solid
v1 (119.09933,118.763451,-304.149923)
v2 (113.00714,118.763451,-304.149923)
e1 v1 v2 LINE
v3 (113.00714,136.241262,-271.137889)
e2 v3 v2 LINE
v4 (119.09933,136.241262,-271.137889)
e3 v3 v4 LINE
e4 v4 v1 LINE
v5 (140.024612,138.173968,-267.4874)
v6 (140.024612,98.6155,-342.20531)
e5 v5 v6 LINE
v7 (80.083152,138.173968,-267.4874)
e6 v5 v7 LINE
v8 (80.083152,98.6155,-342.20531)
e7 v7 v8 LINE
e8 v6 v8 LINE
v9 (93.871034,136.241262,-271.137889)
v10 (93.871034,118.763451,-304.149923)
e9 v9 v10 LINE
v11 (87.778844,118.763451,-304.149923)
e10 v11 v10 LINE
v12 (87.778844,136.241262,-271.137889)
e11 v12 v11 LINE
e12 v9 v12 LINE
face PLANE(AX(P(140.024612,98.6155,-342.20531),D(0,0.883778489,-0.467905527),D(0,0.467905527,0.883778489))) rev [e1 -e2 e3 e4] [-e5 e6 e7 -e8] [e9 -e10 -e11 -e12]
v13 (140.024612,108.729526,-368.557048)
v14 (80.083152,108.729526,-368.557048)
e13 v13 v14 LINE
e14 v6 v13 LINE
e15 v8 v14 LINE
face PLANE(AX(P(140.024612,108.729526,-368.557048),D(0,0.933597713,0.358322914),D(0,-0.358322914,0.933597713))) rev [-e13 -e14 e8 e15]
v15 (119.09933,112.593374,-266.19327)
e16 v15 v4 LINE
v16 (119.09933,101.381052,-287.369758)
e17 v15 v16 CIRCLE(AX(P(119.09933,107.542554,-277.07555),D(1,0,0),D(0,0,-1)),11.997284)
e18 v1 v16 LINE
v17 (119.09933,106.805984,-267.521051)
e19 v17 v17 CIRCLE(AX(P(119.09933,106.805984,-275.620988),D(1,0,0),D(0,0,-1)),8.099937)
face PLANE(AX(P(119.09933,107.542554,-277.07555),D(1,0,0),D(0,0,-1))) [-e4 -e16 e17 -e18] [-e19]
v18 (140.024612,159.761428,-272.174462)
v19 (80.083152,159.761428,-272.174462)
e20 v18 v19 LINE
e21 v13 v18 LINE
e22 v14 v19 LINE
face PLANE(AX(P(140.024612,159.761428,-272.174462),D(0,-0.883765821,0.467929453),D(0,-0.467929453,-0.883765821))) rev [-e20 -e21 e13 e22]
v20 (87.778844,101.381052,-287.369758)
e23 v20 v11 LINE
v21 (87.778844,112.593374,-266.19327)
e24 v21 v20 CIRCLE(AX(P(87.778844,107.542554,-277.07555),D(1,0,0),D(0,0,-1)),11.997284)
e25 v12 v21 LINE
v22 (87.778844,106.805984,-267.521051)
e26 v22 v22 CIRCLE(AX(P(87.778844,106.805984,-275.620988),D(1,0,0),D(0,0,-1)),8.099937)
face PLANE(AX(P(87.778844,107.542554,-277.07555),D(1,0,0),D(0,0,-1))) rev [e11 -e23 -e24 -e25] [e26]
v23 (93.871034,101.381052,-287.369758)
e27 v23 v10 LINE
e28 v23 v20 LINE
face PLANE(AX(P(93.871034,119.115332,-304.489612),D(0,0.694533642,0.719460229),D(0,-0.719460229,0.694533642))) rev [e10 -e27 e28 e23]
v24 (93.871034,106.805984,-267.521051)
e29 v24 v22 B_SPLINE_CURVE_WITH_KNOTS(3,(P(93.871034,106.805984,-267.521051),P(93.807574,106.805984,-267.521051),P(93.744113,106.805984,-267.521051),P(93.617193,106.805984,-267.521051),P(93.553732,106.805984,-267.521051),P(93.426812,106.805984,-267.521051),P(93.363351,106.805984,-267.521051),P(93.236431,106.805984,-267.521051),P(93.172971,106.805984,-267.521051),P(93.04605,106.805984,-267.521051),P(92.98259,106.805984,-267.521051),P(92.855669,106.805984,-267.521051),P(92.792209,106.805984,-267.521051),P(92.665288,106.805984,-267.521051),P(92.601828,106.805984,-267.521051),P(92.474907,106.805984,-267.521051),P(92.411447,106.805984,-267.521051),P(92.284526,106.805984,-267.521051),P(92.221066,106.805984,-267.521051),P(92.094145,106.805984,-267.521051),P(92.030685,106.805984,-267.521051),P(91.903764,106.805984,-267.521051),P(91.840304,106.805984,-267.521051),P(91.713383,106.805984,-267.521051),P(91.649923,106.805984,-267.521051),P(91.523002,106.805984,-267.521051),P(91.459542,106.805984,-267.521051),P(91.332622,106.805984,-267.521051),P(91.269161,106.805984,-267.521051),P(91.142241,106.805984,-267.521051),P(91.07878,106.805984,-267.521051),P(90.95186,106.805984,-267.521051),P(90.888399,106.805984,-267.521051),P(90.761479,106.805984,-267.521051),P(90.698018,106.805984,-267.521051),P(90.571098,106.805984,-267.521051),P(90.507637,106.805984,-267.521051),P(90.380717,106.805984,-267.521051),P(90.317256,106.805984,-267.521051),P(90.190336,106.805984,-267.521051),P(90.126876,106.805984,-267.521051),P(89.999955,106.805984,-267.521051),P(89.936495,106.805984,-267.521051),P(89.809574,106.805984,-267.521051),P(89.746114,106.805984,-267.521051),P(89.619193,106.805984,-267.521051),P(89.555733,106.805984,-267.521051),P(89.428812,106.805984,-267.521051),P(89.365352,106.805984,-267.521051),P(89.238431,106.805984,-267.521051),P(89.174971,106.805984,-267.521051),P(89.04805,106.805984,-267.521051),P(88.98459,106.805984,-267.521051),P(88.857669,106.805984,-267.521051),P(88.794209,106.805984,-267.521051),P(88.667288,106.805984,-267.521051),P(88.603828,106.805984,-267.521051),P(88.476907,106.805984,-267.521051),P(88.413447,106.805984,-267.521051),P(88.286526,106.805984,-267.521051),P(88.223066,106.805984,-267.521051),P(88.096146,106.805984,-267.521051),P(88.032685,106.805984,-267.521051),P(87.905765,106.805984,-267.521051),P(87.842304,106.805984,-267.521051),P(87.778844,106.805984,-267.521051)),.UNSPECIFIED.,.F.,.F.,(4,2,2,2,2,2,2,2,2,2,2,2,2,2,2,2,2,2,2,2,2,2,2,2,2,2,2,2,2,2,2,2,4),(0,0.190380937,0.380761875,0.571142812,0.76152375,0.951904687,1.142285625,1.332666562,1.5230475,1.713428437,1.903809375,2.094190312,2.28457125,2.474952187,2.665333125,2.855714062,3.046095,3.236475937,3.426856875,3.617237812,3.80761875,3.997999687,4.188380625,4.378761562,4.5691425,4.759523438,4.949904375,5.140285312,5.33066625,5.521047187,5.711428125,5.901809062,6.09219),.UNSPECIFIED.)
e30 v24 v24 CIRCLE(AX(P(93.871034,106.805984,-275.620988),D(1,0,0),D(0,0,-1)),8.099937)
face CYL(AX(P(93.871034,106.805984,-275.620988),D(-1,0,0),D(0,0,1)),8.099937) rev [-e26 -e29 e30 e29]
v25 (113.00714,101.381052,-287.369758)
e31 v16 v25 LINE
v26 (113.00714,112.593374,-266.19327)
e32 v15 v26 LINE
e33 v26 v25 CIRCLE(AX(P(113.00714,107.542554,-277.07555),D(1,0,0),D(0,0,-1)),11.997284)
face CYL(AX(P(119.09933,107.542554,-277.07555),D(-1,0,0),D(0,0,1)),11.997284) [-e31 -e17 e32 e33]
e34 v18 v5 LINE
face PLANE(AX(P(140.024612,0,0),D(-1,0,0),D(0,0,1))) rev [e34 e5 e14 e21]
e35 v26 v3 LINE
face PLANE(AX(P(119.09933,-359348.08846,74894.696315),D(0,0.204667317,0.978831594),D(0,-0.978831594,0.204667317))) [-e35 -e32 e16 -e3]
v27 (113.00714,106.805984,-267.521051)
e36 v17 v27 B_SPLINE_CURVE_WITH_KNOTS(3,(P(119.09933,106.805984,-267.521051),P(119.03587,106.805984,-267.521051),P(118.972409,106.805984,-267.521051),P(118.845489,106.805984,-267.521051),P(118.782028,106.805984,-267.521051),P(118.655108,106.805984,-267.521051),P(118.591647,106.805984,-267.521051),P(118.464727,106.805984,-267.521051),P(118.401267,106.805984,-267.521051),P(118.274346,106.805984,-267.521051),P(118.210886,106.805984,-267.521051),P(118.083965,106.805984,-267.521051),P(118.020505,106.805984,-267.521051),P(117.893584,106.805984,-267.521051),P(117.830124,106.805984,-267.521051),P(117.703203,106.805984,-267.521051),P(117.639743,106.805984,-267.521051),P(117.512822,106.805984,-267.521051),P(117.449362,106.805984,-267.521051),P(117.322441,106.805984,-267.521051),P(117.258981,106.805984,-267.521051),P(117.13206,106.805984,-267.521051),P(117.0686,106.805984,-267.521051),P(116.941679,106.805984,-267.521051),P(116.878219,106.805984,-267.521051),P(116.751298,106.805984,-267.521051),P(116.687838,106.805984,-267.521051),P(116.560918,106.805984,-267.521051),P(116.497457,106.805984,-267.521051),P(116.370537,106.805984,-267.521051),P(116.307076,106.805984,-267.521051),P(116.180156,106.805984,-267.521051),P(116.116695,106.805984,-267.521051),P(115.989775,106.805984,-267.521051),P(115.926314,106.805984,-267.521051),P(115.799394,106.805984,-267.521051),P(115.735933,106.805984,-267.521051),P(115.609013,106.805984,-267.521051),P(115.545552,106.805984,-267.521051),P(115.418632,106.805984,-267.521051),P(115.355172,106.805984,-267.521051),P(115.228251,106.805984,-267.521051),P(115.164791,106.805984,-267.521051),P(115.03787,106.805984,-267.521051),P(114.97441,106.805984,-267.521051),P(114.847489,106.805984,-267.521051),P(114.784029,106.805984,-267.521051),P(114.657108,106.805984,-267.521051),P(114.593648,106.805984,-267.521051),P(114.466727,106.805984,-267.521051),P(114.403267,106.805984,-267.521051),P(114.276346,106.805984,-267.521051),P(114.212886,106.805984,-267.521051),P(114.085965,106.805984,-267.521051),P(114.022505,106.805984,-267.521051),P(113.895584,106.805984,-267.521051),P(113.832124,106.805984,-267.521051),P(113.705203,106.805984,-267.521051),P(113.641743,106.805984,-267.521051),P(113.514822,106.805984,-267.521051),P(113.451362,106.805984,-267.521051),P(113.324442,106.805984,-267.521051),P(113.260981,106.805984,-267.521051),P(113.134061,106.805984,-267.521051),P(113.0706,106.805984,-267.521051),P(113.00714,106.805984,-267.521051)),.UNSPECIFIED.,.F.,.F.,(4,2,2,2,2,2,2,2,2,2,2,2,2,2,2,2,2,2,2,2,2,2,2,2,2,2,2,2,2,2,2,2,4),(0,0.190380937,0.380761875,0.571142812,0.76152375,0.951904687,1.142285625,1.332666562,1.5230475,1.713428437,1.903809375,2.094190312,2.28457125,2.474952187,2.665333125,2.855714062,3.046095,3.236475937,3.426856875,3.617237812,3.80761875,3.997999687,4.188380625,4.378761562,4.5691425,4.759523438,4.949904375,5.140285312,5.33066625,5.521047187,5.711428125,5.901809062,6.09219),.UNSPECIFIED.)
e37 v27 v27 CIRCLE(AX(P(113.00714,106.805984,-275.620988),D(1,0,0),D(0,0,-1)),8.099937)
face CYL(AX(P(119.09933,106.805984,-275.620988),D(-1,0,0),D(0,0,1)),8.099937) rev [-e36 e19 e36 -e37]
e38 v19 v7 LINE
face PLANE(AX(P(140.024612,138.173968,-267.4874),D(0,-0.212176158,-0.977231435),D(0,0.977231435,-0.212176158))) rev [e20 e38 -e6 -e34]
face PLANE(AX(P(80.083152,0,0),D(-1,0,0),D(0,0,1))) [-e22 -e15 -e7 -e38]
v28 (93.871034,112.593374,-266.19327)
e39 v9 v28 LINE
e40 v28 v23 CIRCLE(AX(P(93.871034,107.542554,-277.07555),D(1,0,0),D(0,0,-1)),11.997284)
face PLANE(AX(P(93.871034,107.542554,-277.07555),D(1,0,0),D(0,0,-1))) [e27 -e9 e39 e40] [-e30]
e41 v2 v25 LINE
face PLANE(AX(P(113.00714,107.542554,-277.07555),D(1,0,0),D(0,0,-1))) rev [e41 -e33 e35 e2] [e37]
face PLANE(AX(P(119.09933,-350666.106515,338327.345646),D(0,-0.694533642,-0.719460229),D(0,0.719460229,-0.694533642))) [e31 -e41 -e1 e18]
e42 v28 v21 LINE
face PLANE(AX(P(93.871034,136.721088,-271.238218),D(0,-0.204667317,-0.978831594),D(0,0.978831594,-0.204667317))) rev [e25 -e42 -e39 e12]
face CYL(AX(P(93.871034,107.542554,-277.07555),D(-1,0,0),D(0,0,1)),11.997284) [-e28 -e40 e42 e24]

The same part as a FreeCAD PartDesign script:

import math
import FreeCAD as App
import Part
import Sketcher
from FreeCAD import Vector


def add_polygon(sketch, points):
    """Adds a closed chain of lines whose ends are joined by coincident constraints."""
    first, n = sketch.GeometryCount, len(points)
    for a, b in zip(points, points[1:] + points[:1]):
        sketch.addGeometry(Part.LineSegment(App.Vector(*a, 0), App.Vector(*b, 0)), False)
    for i in range(n):
        sketch.addConstraint(Sketcher.Constraint("Coincident", first + i, 2, first + (i + 1) % n, 1))

doc = App.newDocument("Part")
body = doc.addObject("PartDesign::Body", "Body")

# Sketch on YZ plane
sketch1 = body.newObject("Sketcher::SketchObject", "Sketch")
sketch1.AttachmentSupport = (doc.getObject("YZ_Plane"), [""])
sketch1.MapMode = "FlatFace"
sketch1.AttachmentOffset = App.Placement(Vector(0, 0, 80.083152), App.Rotation())
add_polygon(sketch1, [(160, -272), (138, -267), (99, -342), (109, -369)])  # lines 0-3
sketch1.addConstraint([
    Sketcher.Constraint("DistanceY", 0, 2, -1, 1, 267.4874),
    Sketcher.Constraint("DistanceX", -1, 1, 1, 2, 98.6155),
    Sketcher.Constraint("DistanceX", 2, 2, 3, 2, 51.031902),
    Sketcher.Constraint("Distance", 2, 28.22601),
    Sketcher.Constraint("DistanceX", -1, 1, 0, 2, 138.173968),
    Sketcher.Constraint("DistanceY", 1, 2, -1, 1, 342.20531),
    Sketcher.Constraint("DistanceY", 2, 2, -1, 1, 368.557048),
    Sketcher.Constraint("DistanceY", 3, 2, -1, 1, 272.174462),
])
pad1 = body.newObject("PartDesign::Pad", "Pad")
pad1.Profile = sketch1
pad1.Length = 59.94146

# Sketch on YZ plane
sketch2 = body.newObject("Sketcher::SketchObject", "Sketch001")
sketch2.AttachmentSupport = (doc.getObject("YZ_Plane"), [""])
sketch2.MapMode = "FlatFace"
sketch2.AttachmentOffset = App.Placement(Vector(0, 0, 87.778844), App.Rotation())
sketch2.addGeometry([
    Part.LineSegment(Vector(137, -271, 0), Vector(113, -266, 0)),  # 0
    Part.ArcOfCircle(Part.Circle(Vector(108, -277, 0), Vector(0, 0, 1), 12), math.radians(65), math.radians(239)),  # 1
    Part.LineSegment(Vector(101, -287, 0), Vector(119, -304, 0)),  # 2
    Part.LineSegment(Vector(119, -304, 0), Vector(137, -271, 0)),  # 3
    Part.Circle(Vector(107, -276, 0), Vector(0, 0, 1), 8),  # 4
], False)
sketch2.addConstraint([
    Sketcher.Constraint("Coincident", 0, 2, 1, 1),
    Sketcher.Constraint("Coincident", 1, 2, 2, 1),
    Sketcher.Constraint("Coincident", 2, 2, 3, 1),
    Sketcher.Constraint("Coincident", 3, 2, 0, 1),
    Sketcher.Constraint("Diameter", 4, 16.199874),
    Sketcher.Constraint("Radius", 1, 11.997284),
    Sketcher.Constraint("DistanceX", 1, 2, 1, 3, 6.161502),
    Sketcher.Constraint("DistanceY", 1, 3, -1, 1, 277.07555),
    Sketcher.Constraint("DistanceY", 4, 3, -1, 1, 275.620988),
    Sketcher.Constraint("DistanceY", 0, 2, -1, 1, 266.19327),
    Sketcher.Constraint("DistanceX", -1, 1, 1, 2, 101.381052),
    Sketcher.Constraint("DistanceX", -1, 1, 2, 2, 119.115332),
    Sketcher.Constraint("DistanceY", 2, 2, -1, 1, 304.489612),
    Sketcher.Constraint("DistanceX", -1, 1, 3, 2, 136.721088),
    Sketcher.Constraint("DistanceY", 3, 2, -1, 1, 271.238218),
    Sketcher.Constraint("DistanceX", 4, 3, 1, 3, 0.73657),
])
pad2 = body.newObject("PartDesign::Pad", "Pad001")
pad2.Profile = sketch2
pad2.Length = 6.09219

# Sketch on YZ plane
sketch3 = body.newObject("Sketcher::SketchObject", "Sketch002")
sketch3.AttachmentSupport = (doc.getObject("YZ_Plane"), [""])
sketch3.MapMode = "FlatFace"
sketch3.AttachmentOffset = App.Placement(Vector(0, 0, 113.00714), App.Rotation())
sketch3.addGeometry([
    Part.LineSegment(Vector(137, -271, 0), Vector(113, -266, 0)),  # 0
    Part.ArcOfCircle(Part.Circle(Vector(108, -277, 0), Vector(0, 0, 1), 12), math.radians(65), math.radians(239)),  # 1
    Part.LineSegment(Vector(101, -287, 0), Vector(119, -304, 0)),  # 2
    Part.LineSegment(Vector(119, -304, 0), Vector(137, -271, 0)),  # 3
    Part.Circle(Vector(107, -276, 0), Vector(0, 0, 1), 8),  # 4
], False)
sketch3.addConstraint([
    Sketcher.Constraint("Coincident", 0, 2, 1, 1),
    Sketcher.Constraint("Coincident", 1, 2, 2, 1),
    Sketcher.Constraint("Coincident", 2, 2, 3, 1),
    Sketcher.Constraint("Coincident", 3, 2, 0, 1),
    Sketcher.Constraint("Diameter", 4, 16.199874),
    Sketcher.Constraint("Radius", 1, 11.997284),
    Sketcher.Constraint("DistanceX", 1, 2, 1, 3, 6.161502),
    Sketcher.Constraint("DistanceY", 1, 3, -1, 1, 277.07555),
    Sketcher.Constraint("DistanceY", 4, 3, -1, 1, 275.620988),
    Sketcher.Constraint("DistanceY", 0, 2, -1, 1, 266.19327),
    Sketcher.Constraint("DistanceX", -1, 1, 1, 2, 101.381052),
    Sketcher.Constraint("DistanceX", -1, 1, 2, 2, 119.115332),
    Sketcher.Constraint("DistanceY", 2, 2, -1, 1, 304.489612),
    Sketcher.Constraint("DistanceX", -1, 1, 3, 2, 136.721088),
    Sketcher.Constraint("DistanceY", 3, 2, -1, 1, 271.238218),
    Sketcher.Constraint("DistanceX", 4, 3, 1, 3, 0.73657),
])
pad3 = body.newObject("PartDesign::Pad", "Pad002")
pad3.Profile = sketch3
pad3.Length = 6.09219

doc.recompute()
